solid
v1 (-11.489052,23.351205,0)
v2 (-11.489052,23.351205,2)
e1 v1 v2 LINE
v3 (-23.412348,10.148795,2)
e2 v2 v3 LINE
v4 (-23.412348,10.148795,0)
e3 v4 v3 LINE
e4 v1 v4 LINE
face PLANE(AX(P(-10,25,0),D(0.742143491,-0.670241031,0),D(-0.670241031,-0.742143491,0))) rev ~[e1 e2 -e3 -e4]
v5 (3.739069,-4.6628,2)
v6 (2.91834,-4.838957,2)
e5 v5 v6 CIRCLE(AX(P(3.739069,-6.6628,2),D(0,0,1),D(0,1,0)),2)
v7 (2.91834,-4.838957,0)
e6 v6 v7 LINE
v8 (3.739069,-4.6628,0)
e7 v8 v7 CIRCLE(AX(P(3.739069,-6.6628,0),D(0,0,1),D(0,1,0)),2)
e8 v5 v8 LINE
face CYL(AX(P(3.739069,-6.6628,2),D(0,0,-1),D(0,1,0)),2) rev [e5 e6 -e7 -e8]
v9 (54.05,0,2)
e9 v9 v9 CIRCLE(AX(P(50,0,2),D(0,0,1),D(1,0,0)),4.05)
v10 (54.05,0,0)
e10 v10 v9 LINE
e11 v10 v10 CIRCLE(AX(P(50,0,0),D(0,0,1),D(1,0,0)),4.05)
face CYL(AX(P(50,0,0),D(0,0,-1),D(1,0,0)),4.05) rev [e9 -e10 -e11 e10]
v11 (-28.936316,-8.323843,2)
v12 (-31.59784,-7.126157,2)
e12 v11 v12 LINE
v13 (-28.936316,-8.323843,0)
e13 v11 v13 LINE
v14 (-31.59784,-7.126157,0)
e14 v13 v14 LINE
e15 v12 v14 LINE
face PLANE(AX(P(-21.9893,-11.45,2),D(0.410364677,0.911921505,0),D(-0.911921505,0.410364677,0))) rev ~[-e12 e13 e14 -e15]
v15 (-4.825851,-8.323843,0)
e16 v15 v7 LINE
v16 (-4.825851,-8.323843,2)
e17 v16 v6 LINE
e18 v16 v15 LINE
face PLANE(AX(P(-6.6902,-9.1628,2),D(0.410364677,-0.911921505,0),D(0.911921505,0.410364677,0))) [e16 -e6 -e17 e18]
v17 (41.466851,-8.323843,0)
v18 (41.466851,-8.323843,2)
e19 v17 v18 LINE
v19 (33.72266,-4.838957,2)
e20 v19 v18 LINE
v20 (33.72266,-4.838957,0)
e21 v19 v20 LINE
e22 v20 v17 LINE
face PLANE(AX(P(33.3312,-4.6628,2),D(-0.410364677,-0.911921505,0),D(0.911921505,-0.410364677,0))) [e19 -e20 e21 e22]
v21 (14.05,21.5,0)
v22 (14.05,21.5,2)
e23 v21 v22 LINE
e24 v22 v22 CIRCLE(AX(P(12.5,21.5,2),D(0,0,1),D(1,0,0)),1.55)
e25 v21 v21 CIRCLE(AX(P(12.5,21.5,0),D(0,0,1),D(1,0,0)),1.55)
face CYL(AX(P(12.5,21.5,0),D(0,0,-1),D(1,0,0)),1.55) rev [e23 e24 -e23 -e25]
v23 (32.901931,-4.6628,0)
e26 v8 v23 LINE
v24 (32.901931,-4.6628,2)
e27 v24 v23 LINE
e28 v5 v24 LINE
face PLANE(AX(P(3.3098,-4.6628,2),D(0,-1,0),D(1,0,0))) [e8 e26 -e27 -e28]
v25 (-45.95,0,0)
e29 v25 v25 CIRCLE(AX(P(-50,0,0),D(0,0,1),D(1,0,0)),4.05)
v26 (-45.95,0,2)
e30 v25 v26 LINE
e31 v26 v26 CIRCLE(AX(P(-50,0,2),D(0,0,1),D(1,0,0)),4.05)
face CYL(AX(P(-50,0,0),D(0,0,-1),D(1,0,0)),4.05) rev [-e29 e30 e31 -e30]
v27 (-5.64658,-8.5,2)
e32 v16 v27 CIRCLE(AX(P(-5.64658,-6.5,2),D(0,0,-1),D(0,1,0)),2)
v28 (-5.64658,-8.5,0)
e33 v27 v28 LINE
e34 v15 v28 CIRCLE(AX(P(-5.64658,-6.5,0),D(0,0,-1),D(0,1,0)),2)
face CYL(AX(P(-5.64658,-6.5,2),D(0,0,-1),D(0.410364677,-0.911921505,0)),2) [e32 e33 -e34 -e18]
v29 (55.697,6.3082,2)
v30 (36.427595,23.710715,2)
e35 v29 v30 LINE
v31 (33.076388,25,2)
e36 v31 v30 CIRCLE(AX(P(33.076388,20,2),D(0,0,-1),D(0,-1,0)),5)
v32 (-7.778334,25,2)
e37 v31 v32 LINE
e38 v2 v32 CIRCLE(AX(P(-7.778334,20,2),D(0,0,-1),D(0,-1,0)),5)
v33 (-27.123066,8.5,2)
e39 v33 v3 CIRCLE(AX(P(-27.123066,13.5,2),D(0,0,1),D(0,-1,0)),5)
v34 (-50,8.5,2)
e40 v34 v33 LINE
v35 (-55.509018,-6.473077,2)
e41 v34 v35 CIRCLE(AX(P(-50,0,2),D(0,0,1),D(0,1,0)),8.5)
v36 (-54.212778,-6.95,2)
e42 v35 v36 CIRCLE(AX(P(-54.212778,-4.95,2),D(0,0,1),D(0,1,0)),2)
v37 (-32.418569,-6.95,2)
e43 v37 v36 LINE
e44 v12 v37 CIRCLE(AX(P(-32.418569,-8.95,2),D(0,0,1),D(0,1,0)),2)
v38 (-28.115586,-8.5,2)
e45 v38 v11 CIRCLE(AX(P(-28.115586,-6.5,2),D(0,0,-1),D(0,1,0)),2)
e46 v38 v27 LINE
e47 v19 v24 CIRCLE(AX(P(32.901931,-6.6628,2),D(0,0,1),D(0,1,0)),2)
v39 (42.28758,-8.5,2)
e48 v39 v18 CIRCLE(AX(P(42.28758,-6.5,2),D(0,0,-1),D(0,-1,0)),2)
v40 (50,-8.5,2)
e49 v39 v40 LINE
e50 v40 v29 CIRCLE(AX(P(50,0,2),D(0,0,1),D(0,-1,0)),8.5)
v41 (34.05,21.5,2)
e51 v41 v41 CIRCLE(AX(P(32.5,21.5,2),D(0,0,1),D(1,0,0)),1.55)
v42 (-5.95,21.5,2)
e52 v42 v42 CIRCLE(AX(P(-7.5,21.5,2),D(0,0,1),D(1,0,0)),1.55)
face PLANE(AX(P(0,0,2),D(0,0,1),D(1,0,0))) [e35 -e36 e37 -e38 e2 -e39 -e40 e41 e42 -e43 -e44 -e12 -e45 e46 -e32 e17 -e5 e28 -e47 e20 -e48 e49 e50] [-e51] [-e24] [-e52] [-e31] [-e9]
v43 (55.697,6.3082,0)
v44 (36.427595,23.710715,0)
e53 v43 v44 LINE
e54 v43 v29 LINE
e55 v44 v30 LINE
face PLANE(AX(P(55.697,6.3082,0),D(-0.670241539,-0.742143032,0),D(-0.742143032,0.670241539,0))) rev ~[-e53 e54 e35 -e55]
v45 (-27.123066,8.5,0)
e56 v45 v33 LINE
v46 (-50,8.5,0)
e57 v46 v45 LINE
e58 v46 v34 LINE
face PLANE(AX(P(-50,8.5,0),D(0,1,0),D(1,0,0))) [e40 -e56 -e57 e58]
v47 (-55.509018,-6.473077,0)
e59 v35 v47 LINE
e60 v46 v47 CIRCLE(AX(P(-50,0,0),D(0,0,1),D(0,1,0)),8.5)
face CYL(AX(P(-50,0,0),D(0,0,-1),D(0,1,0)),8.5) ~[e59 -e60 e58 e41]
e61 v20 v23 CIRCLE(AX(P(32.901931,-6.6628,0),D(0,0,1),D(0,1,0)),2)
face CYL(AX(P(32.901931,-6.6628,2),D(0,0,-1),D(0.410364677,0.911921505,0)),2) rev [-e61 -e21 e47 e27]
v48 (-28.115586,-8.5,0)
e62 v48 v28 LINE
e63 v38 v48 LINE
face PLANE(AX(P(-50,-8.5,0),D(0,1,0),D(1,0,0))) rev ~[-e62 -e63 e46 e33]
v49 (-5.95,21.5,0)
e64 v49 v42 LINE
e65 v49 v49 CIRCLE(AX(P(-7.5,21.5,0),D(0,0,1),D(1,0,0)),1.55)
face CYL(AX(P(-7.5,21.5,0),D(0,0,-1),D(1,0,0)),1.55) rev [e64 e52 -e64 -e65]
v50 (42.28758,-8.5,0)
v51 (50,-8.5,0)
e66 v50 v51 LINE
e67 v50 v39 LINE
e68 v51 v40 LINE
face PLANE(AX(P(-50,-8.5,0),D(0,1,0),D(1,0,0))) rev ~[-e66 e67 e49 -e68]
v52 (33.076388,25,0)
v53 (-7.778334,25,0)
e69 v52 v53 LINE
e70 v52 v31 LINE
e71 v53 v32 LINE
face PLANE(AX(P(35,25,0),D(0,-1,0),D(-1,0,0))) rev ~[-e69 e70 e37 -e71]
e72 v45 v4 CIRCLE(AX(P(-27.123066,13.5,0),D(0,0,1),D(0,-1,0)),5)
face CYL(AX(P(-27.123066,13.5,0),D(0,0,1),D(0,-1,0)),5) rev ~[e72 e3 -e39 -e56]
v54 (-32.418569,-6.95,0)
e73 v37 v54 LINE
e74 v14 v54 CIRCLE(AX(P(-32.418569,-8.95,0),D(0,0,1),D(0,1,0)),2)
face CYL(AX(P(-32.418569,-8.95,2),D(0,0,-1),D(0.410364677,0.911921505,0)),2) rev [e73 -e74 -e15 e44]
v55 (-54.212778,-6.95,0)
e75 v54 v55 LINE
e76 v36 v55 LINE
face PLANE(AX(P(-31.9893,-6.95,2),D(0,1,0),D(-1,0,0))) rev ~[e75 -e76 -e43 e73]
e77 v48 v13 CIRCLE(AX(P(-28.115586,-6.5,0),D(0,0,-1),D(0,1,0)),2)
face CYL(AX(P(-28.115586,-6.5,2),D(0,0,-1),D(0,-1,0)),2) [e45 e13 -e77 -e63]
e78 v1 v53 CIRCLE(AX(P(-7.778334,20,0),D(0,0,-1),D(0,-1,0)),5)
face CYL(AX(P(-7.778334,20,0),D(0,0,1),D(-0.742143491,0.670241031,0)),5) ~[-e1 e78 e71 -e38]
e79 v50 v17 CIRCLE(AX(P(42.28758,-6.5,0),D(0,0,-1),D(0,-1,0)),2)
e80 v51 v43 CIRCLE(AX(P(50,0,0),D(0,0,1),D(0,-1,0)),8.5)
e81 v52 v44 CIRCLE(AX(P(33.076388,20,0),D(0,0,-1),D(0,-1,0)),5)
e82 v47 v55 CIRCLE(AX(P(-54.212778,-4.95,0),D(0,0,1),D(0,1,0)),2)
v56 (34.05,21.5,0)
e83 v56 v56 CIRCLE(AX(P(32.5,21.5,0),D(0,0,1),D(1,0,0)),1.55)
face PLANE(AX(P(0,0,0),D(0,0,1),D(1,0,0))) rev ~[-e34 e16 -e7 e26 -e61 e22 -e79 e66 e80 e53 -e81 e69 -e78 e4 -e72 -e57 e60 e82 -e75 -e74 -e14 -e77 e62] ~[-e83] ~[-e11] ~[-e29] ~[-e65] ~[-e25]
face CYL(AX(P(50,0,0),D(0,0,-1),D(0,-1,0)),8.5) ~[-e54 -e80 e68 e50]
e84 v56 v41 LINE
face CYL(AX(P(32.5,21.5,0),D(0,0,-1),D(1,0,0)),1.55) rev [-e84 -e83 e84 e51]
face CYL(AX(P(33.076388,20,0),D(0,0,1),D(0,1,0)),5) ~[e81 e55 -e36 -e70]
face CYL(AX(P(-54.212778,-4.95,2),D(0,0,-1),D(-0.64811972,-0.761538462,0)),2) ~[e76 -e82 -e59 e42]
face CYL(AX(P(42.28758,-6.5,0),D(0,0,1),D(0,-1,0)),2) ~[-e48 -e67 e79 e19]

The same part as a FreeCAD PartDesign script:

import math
import FreeCAD as App
import Part
import Sketcher
from FreeCAD import Vector
Q = App.Units.Quantity


def edges_at(feature, points):
    """Names of the edges that pass closest to the given points."""
    edges = feature.Shape.Edges
    near = lambda p: min(range(len(edges)), key=lambda i: edges[i].distToShape(Part.Vertex(*p))[0])
    return sorted({f"Edge{near(p) + 1}" for p in points})


def add_polygon(sketch, points):
    """Adds a closed chain of lines whose ends are joined by coincident constraints."""
    first, n = sketch.GeometryCount, len(points)
    for a, b in zip(points, points[1:] + points[:1]):
        sketch.addGeometry(Part.LineSegment(App.Vector(*a, 0), App.Vector(*b, 0)), False)
    for i in range(n):
        sketch.addConstraint(Sketcher.Constraint("Coincident", first + i, 2, first + (i + 1) % n, 1))

doc = App.newDocument("Part")
params = doc.addObject("Spreadsheet::Sheet", "Params")
for row, (alias, value) in enumerate([
    ("sketch1_diameter", "8.1 mm"),
    ("sketch1_diameter2", "3.1 mm"),
    ("sketch1_radius", "8.5 mm"),
    ("sketch1_width", "100 mm"),
    ("sketch1_width2", "45 mm"),
    ("pad1_length", "2 mm"),
    ("fillet_radius", "5 mm"),
    ("sketch2_width", "5 mm"),
    ("sketch2_height", "1 mm"),
    ("pocket1_length", "10 mm"),
    ("fillet2_radius", "2 mm"),
], start=1):
    params.set(f"A{row}", alias)
    params.set(f"B{row}", "=" + value)
    params.setAlias(f"B{row}", alias)

body = doc.addObject("PartDesign::Body", "Body")

sketch1 = body.newObject("Sketcher::SketchObject", "Sketch")
sketch1.AttachmentSupport = (doc.getObject("XY_Plane"), [""])
sketch1.MapMode = "FlatFace"
sketch1.addGeometry(Part.LineSegment(Vector(-24.9, 8.5, 0), Vector(-50, 8.5, 0)), False)
sketch1.addGeometry(Part.ArcOfCircle(Part.Circle(Vector(-50, 0, 0), Vector(0, 0, 1), 8.5), math.radians(90), math.radians(270)), False)
sketch1.addGeometry(Part.LineSegment(Vector(-50, -8.5, 0), Vector(50, -8.5, 0)), False)
sketch1.addGeometry(Part.ArcOfCircle(Part.Circle(Vector(50, 0, 0), Vector(0, 0, 1), 8.5), math.radians(-90), math.radians(48)), False)
sketch1.addGeometry(Part.LineSegment(Vector(55.7, 6.3, 0), Vector(35, 25, 0)), False)
sketch1.addGeometry(Part.LineSegment(Vector(35, 25, 0), Vector(-10, 25, 0)), False)
sketch1.addGeometry(Part.LineSegment(Vector(-10, 25, 0), Vector(-24.9, 8.5, 0)), False)
sketch1.addGeometry(Part.Circle(Vector(-50, 0, 0), Vector(0, 0, 1), 4), False)
sketch1.addGeometry(Part.Circle(Vector(50, 0, 0), Vector(0, 0, 1), 4), False)
sketch1.addGeometry(Part.Circle(Vector(12.5, 21.5, 0), Vector(0, 0, 1), 1.6), False)
sketch1.addGeometry(Part.Circle(Vector(32.5, 21.5, 0), Vector(0, 0, 1), 1.6), False)
sketch1.addGeometry(Part.Circle(Vector(-7.5, 21.5, 0), Vector(0, 0, 1), 1.6), False)
sketch1.addConstraint(Sketcher.Constraint("Tangent", 0, 2, 1, 1))
sketch1.addConstraint(Sketcher.Constraint("Tangent", 1, 2, 2, 1))
sketch1.addConstraint(Sketcher.Constraint("Tangent", 2, 2, 3, 1))
sketch1.addConstraint(Sketcher.Constraint("Tangent", 3, 2, 4, 1))
sketch1.addConstraint(Sketcher.Constraint("Coincident", 4, 2, 5, 1))
sketch1.addConstraint(Sketcher.Constraint("Coincident", 5, 2, 6, 1))
sketch1.addConstraint(Sketcher.Constraint("Coincident", 6, 2, 0, 1))
sketch1.addConstraint(Sketcher.Constraint("Horizontal", 0))
sketch1.addConstraint(Sketcher.Constraint("Horizontal", 2))
sketch1.addConstraint(Sketcher.Constraint("Horizontal", 5))
sketch1.addConstraint(Sketcher.Constraint("Coincident", 7, 3, 1, 3))
sketch1.addConstraint(Sketcher.Constraint("Coincident", 8, 3, 3, 3))
sketch1.addConstraint(Sketcher.Constraint("Equal", 1, 3))
sketch1.addConstraint(Sketcher.Constraint("Equal", 7, 8))
sketch1.addConstraint(Sketcher.Constraint("Equal", 9, 10))
sketch1.addConstraint(Sketcher.Constraint("Equal", 10, 11))
sketch1.addConstraint(Sketcher.Constraint("Symmetric", 1, 3, 3, 3, -1, 1))
sketch1.addConstraint(Sketcher.Constraint("Perpendicular", 4, 6))
sketch1.addConstraint(Sketcher.Constraint("Horizontal", 9, 3, 10, 3))
sketch1.addConstraint(Sketcher.Constraint("Horizontal", 10, 3, 11, 3))
sketch1.addConstraint(Sketcher.Constraint("Diameter", 7, Q("8.1 mm")))
sketch1.addConstraint(Sketcher.Constraint("Diameter", 9, Q("3.1 mm")))
sketch1.addConstraint(Sketcher.Constraint("Radius", 1, Q("8.5 mm")))
sketch1.addConstraint(Sketcher.Constraint("DistanceX", 2, 1, 2, 2, Q("100 mm")))
sketch1.addConstraint(Sketcher.Constraint("DistanceX", 5, 2, 5, 1, Q("45 mm")))
sketch1.addConstraint(Sketcher.Constraint("DistanceX", 4, 2, 3, 3, Q("15 mm")))
sketch1.addConstraint(Sketcher.Constraint("DistanceX", 10, 3, 4, 2, Q("2.5 mm")))
sketch1.addConstraint(Sketcher.Constraint("DistanceX", 5, 2, 11, 3, Q("2.5 mm")))
sketch1.addConstraint(Sketcher.Constraint("DistanceY", -1, 1, 4, 2, Q("25 mm")))
sketch1.addConstraint(Sketcher.Constraint("DistanceX", 9, 3, 10, 3, Q("20 mm")))
sketch1.addConstraint(Sketcher.Constraint("DistanceY", 0, 2, 11, 3, Q("13 mm")))
sketch1.setExpression("Constraints[20]", "Params.sketch1_diameter")
sketch1.setExpression("Constraints[21]", "Params.sketch1_diameter2")
sketch1.setExpression("Constraints[22]", "Params.sketch1_radius")
sketch1.setExpression("Constraints[23]", "Params.sketch1_width")
sketch1.setExpression("Constraints[24]", "Params.sketch1_width2")
pad1 = body.newObject("PartDesign::Pad", "Pad")
pad1.Profile = sketch1
pad1.setExpression("Length", "Params.pad1_length")
doc.recompute()

fillet = body.newObject("PartDesign::Fillet", "Fillet")
fillet.Base = (pad1, edges_at(pad1, [(-24.901, 8.5, 1), (-10, 25, 1), (35, 25, 1)]))
fillet.setExpression("Radius", "Params.fillet_radius")

sketch2 = body.newObject("Sketcher::SketchObject", "Sketch001")
sketch2.AttachmentSupport = (doc.getObject("XY_Plane"), [""])
sketch2.MapMode = "FlatFace"
sketch2.AttachmentOffset = App.Placement(Vector(0, 0, 2), App.Rotation())
add_polygon(sketch2, [(-22, -11.4), (-32, -7), (-62, -7), (-72, -11.4), (-77, -11.4), (-77, -12.4), (-17, -12.4), (-17, -11.4)])
add_polygon(sketch2, [(3.3, -4.7), (-6.7, -9.2), (-11.7, -9.2), (-11.7, -10.2), (48.3, -10.2), (48.3, -9.2), (43.3, -9.2), (33.3, -4.7)])
sketch2.addConstraint(Sketcher.Constraint("Horizontal", 1))
sketch2.addConstraint(Sketcher.Constraint("Horizontal", 3))
sketch2.addConstraint(Sketcher.Constraint("Vertical", 4))
sketch2.addConstraint(Sketcher.Constraint("Horizontal", 5))
sketch2.addConstraint(Sketcher.Constraint("Vertical", 6))
sketch2.addConstraint(Sketcher.Constraint("Horizontal", 7))
sketch2.addConstraint(Sketcher.Constraint("Horizontal", 9))
sketch2.addConstraint(Sketcher.Constraint("Vertical", 10))
sketch2.addConstraint(Sketcher.Constraint("Horizontal", 11))
sketch2.addConstraint(Sketcher.Constraint("Vertical", 12))
sketch2.addConstraint(Sketcher.Constraint("Horizontal", 13))
sketch2.addConstraint(Sketcher.Constraint("Horizontal", 15))
sketch2.addConstraint(Sketcher.Constraint("Parallel", 2, 8))
sketch2.addConstraint(Sketcher.Constraint("Parallel", 0, 14))
sketch2.addConstraint(Sketcher.Constraint("Horizontal", 3, 2, 6, 2))
sketch2.addConstraint(Sketcher.Constraint("Horizontal", 9, 2, 12, 2))
sketch2.addConstraint(Sketcher.Constraint("Equal", 3, 7))
sketch2.addConstraint(Sketcher.Constraint("Equal", 7, 9))
sketch2.addConstraint(Sketcher.Constraint("Equal", 5, 11))
sketch2.addConstraint(Sketcher.Constraint("Equal", 9, 13))
sketch2.addConstraint(Sketcher.Constraint("Equal", 1, 15))
sketch2.addConstraint(Sketcher.Constraint("Equal", 6, 10))
sketch2.addConstraint(Sketcher.Constraint("Equal", 0, 2))
sketch2.addConstraint(Sketcher.Constraint("DistanceX", 3, 2, 3, 1, Q("5 mm")))
sketch2.addConstraint(Sketcher.Constraint("DistanceY", 4, 2, 4, 1, Q("1 mm")))
sketch2.addConstraint(Sketcher.Constraint("DistanceX", 2, 2, 1, 2, Q("10 mm")))
sketch2.addConstraint(Sketcher.Constraint("DistanceY", 2, 2, 1, 2, Q("4.5 mm")))
sketch2.addConstraint(Sketcher.Constraint("DistanceY", 0, 2, -1, 1, Q("6.95 mm")))
sketch2.addConstraint(Sketcher.Constraint("DistanceX", 1, 2, 1, 1, Q("30.0214 mm")))
sketch2.addConstraint(Sketcher.Constraint("DistanceX", 6, 2, 8, 2, Q("10.299 mm")))
sketch2.addConstraint(Sketcher.Constraint("DistanceX", 0, 2, -1, 1, Q("31.9893 mm")))
sketch2.addConstraint(Sketcher.Constraint("DistanceY", 8, 2, -1, 1, Q("9.1628 mm")))
sketch2.setExpression("Constraints[39]", "Params.sketch2_width")
sketch2.setExpression("Constraints[40]", "Params.sketch2_height")
pocket1 = body.newObject("PartDesign::Pocket", "Pocket")
pocket1.Profile = sketch2
pocket1.setExpression("Length", "Params.pocket1_length")
doc.recompute()

fillet2 = body.newObject("PartDesign::Fillet", "Fillet001")
fillet2.Base = (pocket1, edges_at(pocket1, [
    (-28.545, -8.5, 1),
    (-31.989, -6.95, 1),
    (-5.217, -8.5, 1),
    (3.31, -4.663, 1),
    (41.858, -8.5, 1),
    (33.331, -4.663, 1),
    (-54.894, -6.95, 1),
]))
fillet2.setExpression("Radius", "Params.fillet2_radius")

doc.recompute()
